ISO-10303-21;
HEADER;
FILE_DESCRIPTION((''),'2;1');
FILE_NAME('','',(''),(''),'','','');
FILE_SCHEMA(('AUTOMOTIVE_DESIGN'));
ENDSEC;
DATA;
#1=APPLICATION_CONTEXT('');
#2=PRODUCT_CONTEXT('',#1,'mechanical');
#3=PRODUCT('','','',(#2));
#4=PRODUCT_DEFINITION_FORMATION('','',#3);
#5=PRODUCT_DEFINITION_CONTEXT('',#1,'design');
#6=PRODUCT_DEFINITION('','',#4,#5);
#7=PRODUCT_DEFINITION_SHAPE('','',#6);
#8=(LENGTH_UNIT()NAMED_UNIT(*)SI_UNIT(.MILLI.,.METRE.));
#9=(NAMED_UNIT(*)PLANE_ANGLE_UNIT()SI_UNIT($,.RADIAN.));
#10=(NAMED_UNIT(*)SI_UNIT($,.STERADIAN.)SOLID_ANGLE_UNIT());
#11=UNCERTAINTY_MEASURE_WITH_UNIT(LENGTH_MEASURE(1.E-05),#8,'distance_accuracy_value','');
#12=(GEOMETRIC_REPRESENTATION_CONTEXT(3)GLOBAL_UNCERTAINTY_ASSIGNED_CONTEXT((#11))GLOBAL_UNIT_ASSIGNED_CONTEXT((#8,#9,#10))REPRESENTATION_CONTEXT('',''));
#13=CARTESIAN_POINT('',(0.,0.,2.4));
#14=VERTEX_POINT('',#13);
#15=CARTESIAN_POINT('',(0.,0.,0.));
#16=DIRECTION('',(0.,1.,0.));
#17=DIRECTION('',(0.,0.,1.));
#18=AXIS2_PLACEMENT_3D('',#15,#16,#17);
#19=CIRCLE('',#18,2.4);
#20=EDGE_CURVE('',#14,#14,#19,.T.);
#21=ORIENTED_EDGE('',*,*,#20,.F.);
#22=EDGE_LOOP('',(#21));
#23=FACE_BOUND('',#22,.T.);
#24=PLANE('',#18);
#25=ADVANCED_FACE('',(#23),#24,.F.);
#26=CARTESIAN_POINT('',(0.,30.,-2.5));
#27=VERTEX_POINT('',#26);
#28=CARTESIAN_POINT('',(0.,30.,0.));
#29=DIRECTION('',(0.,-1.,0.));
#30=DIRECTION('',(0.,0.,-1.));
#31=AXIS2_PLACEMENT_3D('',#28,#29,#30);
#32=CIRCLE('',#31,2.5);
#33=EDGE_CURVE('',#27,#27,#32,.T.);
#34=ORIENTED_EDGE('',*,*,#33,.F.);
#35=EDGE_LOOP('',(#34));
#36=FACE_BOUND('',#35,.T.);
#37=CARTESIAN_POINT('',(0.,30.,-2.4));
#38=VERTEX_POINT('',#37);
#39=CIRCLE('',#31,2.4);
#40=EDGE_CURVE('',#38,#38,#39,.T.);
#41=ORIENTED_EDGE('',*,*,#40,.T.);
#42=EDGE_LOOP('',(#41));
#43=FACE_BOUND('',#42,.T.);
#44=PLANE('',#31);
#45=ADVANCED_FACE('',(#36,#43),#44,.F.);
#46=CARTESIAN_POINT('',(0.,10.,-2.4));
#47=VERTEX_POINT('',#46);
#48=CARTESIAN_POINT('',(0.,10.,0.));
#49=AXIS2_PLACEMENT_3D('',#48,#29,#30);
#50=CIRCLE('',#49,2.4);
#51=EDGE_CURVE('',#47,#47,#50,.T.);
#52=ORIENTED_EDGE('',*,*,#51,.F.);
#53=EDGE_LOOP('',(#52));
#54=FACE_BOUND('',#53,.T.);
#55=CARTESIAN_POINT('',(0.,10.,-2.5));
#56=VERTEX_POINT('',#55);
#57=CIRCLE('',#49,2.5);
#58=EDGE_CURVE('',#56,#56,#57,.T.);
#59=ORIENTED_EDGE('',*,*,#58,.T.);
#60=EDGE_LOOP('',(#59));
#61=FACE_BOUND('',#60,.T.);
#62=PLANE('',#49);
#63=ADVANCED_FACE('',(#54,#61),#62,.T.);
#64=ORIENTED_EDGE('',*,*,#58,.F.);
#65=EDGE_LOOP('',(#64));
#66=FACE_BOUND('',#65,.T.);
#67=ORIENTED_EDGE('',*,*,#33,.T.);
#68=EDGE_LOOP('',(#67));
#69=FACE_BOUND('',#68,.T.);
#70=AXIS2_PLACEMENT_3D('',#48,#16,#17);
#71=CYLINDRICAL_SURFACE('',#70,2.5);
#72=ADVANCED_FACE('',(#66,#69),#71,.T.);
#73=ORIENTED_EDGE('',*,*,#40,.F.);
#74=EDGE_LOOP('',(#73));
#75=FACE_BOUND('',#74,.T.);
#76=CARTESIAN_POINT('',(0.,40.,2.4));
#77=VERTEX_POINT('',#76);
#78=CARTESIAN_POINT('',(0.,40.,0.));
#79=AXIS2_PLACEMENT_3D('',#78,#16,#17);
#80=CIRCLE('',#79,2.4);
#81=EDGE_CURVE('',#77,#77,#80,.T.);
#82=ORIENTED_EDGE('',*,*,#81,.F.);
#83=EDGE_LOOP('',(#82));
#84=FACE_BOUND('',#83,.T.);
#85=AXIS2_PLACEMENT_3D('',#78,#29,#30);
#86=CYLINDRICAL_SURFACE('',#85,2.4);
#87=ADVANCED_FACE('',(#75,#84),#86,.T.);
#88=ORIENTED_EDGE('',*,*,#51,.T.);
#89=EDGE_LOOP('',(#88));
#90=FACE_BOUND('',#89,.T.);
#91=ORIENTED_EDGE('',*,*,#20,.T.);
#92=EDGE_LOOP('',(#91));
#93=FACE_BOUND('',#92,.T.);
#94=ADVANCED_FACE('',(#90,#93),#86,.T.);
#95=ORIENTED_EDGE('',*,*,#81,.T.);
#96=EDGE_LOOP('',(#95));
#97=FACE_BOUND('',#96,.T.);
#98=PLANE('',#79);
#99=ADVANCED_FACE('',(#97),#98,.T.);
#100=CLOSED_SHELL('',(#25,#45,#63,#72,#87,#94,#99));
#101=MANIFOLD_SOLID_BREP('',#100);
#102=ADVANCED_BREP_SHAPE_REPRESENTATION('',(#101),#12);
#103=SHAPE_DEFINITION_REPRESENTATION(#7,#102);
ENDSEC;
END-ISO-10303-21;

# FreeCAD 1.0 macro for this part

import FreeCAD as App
import Part
import Sketcher

doc = App.newDocument("Part")
params = doc.addObject("Spreadsheet::Sheet", "Params")
for row, (alias, value) in enumerate([
    ("sketch1_diameter", "4.8 mm"),
    ("pad1_length", "40 mm"),
    ("sketch2_diameter", "5 mm"),
    ("pad2_length", "20 mm"),
], start=1):
    params.set(f"A{row}", alias)
    params.set(f"B{row}", "=" + value)
    params.setAlias(f"B{row}", alias)

body = doc.addObject("PartDesign::Body", "Body")

sketch1 = body.newObject("Sketcher::SketchObject", "Sketch")
sketch1.AttachmentSupport = (doc.getObject("XZ_Plane"), [""])
sketch1.MapMode = "FlatFace"
sketch1.addGeometry(Part.Circle(App.Vector(0, 0, 0), App.Vector(0, 0, 1), 2.4), False)
sketch1.addConstraint(Sketcher.Constraint("Coincident", 0, 3, -1, 1))
sketch1.addConstraint(Sketcher.Constraint("Diameter", 0, 4.8))
sketch1.setExpression("Constraints[1]", "Params.sketch1_diameter")
pad1 = body.newObject("PartDesign::Pad", "Pad")
pad1.Profile = sketch1
pad1.setExpression("Length", "Params.pad1_length")
pad1.Reversed = True

sketch2 = body.newObject("Sketcher::SketchObject", "Sketch001")
sketch2.AttachmentSupport = (doc.getObject("XZ_Plane"), [""])
sketch2.MapMode = "FlatFace"
sketch2.AttachmentOffset = App.Placement(App.Vector(0, 0, -20), App.Rotation())
sketch2.addGeometry(Part.Circle(App.Vector(0, 0, 0), App.Vector(0, 0, 1), 2.5), False)
sketch2.addConstraint(Sketcher.Constraint("Coincident", 0, 3, -1, 1))
sketch2.addConstraint(Sketcher.Constraint("Diameter", 0, 5.0))
sketch2.setExpression("Constraints[1]", "Params.sketch2_diameter")
pad2 = body.newObject("PartDesign::Pad", "Pad001")
pad2.Profile = sketch2
pad2.setExpression("Length", "Params.pad2_length")
pad2.Midplane = True

doc.recompute()
